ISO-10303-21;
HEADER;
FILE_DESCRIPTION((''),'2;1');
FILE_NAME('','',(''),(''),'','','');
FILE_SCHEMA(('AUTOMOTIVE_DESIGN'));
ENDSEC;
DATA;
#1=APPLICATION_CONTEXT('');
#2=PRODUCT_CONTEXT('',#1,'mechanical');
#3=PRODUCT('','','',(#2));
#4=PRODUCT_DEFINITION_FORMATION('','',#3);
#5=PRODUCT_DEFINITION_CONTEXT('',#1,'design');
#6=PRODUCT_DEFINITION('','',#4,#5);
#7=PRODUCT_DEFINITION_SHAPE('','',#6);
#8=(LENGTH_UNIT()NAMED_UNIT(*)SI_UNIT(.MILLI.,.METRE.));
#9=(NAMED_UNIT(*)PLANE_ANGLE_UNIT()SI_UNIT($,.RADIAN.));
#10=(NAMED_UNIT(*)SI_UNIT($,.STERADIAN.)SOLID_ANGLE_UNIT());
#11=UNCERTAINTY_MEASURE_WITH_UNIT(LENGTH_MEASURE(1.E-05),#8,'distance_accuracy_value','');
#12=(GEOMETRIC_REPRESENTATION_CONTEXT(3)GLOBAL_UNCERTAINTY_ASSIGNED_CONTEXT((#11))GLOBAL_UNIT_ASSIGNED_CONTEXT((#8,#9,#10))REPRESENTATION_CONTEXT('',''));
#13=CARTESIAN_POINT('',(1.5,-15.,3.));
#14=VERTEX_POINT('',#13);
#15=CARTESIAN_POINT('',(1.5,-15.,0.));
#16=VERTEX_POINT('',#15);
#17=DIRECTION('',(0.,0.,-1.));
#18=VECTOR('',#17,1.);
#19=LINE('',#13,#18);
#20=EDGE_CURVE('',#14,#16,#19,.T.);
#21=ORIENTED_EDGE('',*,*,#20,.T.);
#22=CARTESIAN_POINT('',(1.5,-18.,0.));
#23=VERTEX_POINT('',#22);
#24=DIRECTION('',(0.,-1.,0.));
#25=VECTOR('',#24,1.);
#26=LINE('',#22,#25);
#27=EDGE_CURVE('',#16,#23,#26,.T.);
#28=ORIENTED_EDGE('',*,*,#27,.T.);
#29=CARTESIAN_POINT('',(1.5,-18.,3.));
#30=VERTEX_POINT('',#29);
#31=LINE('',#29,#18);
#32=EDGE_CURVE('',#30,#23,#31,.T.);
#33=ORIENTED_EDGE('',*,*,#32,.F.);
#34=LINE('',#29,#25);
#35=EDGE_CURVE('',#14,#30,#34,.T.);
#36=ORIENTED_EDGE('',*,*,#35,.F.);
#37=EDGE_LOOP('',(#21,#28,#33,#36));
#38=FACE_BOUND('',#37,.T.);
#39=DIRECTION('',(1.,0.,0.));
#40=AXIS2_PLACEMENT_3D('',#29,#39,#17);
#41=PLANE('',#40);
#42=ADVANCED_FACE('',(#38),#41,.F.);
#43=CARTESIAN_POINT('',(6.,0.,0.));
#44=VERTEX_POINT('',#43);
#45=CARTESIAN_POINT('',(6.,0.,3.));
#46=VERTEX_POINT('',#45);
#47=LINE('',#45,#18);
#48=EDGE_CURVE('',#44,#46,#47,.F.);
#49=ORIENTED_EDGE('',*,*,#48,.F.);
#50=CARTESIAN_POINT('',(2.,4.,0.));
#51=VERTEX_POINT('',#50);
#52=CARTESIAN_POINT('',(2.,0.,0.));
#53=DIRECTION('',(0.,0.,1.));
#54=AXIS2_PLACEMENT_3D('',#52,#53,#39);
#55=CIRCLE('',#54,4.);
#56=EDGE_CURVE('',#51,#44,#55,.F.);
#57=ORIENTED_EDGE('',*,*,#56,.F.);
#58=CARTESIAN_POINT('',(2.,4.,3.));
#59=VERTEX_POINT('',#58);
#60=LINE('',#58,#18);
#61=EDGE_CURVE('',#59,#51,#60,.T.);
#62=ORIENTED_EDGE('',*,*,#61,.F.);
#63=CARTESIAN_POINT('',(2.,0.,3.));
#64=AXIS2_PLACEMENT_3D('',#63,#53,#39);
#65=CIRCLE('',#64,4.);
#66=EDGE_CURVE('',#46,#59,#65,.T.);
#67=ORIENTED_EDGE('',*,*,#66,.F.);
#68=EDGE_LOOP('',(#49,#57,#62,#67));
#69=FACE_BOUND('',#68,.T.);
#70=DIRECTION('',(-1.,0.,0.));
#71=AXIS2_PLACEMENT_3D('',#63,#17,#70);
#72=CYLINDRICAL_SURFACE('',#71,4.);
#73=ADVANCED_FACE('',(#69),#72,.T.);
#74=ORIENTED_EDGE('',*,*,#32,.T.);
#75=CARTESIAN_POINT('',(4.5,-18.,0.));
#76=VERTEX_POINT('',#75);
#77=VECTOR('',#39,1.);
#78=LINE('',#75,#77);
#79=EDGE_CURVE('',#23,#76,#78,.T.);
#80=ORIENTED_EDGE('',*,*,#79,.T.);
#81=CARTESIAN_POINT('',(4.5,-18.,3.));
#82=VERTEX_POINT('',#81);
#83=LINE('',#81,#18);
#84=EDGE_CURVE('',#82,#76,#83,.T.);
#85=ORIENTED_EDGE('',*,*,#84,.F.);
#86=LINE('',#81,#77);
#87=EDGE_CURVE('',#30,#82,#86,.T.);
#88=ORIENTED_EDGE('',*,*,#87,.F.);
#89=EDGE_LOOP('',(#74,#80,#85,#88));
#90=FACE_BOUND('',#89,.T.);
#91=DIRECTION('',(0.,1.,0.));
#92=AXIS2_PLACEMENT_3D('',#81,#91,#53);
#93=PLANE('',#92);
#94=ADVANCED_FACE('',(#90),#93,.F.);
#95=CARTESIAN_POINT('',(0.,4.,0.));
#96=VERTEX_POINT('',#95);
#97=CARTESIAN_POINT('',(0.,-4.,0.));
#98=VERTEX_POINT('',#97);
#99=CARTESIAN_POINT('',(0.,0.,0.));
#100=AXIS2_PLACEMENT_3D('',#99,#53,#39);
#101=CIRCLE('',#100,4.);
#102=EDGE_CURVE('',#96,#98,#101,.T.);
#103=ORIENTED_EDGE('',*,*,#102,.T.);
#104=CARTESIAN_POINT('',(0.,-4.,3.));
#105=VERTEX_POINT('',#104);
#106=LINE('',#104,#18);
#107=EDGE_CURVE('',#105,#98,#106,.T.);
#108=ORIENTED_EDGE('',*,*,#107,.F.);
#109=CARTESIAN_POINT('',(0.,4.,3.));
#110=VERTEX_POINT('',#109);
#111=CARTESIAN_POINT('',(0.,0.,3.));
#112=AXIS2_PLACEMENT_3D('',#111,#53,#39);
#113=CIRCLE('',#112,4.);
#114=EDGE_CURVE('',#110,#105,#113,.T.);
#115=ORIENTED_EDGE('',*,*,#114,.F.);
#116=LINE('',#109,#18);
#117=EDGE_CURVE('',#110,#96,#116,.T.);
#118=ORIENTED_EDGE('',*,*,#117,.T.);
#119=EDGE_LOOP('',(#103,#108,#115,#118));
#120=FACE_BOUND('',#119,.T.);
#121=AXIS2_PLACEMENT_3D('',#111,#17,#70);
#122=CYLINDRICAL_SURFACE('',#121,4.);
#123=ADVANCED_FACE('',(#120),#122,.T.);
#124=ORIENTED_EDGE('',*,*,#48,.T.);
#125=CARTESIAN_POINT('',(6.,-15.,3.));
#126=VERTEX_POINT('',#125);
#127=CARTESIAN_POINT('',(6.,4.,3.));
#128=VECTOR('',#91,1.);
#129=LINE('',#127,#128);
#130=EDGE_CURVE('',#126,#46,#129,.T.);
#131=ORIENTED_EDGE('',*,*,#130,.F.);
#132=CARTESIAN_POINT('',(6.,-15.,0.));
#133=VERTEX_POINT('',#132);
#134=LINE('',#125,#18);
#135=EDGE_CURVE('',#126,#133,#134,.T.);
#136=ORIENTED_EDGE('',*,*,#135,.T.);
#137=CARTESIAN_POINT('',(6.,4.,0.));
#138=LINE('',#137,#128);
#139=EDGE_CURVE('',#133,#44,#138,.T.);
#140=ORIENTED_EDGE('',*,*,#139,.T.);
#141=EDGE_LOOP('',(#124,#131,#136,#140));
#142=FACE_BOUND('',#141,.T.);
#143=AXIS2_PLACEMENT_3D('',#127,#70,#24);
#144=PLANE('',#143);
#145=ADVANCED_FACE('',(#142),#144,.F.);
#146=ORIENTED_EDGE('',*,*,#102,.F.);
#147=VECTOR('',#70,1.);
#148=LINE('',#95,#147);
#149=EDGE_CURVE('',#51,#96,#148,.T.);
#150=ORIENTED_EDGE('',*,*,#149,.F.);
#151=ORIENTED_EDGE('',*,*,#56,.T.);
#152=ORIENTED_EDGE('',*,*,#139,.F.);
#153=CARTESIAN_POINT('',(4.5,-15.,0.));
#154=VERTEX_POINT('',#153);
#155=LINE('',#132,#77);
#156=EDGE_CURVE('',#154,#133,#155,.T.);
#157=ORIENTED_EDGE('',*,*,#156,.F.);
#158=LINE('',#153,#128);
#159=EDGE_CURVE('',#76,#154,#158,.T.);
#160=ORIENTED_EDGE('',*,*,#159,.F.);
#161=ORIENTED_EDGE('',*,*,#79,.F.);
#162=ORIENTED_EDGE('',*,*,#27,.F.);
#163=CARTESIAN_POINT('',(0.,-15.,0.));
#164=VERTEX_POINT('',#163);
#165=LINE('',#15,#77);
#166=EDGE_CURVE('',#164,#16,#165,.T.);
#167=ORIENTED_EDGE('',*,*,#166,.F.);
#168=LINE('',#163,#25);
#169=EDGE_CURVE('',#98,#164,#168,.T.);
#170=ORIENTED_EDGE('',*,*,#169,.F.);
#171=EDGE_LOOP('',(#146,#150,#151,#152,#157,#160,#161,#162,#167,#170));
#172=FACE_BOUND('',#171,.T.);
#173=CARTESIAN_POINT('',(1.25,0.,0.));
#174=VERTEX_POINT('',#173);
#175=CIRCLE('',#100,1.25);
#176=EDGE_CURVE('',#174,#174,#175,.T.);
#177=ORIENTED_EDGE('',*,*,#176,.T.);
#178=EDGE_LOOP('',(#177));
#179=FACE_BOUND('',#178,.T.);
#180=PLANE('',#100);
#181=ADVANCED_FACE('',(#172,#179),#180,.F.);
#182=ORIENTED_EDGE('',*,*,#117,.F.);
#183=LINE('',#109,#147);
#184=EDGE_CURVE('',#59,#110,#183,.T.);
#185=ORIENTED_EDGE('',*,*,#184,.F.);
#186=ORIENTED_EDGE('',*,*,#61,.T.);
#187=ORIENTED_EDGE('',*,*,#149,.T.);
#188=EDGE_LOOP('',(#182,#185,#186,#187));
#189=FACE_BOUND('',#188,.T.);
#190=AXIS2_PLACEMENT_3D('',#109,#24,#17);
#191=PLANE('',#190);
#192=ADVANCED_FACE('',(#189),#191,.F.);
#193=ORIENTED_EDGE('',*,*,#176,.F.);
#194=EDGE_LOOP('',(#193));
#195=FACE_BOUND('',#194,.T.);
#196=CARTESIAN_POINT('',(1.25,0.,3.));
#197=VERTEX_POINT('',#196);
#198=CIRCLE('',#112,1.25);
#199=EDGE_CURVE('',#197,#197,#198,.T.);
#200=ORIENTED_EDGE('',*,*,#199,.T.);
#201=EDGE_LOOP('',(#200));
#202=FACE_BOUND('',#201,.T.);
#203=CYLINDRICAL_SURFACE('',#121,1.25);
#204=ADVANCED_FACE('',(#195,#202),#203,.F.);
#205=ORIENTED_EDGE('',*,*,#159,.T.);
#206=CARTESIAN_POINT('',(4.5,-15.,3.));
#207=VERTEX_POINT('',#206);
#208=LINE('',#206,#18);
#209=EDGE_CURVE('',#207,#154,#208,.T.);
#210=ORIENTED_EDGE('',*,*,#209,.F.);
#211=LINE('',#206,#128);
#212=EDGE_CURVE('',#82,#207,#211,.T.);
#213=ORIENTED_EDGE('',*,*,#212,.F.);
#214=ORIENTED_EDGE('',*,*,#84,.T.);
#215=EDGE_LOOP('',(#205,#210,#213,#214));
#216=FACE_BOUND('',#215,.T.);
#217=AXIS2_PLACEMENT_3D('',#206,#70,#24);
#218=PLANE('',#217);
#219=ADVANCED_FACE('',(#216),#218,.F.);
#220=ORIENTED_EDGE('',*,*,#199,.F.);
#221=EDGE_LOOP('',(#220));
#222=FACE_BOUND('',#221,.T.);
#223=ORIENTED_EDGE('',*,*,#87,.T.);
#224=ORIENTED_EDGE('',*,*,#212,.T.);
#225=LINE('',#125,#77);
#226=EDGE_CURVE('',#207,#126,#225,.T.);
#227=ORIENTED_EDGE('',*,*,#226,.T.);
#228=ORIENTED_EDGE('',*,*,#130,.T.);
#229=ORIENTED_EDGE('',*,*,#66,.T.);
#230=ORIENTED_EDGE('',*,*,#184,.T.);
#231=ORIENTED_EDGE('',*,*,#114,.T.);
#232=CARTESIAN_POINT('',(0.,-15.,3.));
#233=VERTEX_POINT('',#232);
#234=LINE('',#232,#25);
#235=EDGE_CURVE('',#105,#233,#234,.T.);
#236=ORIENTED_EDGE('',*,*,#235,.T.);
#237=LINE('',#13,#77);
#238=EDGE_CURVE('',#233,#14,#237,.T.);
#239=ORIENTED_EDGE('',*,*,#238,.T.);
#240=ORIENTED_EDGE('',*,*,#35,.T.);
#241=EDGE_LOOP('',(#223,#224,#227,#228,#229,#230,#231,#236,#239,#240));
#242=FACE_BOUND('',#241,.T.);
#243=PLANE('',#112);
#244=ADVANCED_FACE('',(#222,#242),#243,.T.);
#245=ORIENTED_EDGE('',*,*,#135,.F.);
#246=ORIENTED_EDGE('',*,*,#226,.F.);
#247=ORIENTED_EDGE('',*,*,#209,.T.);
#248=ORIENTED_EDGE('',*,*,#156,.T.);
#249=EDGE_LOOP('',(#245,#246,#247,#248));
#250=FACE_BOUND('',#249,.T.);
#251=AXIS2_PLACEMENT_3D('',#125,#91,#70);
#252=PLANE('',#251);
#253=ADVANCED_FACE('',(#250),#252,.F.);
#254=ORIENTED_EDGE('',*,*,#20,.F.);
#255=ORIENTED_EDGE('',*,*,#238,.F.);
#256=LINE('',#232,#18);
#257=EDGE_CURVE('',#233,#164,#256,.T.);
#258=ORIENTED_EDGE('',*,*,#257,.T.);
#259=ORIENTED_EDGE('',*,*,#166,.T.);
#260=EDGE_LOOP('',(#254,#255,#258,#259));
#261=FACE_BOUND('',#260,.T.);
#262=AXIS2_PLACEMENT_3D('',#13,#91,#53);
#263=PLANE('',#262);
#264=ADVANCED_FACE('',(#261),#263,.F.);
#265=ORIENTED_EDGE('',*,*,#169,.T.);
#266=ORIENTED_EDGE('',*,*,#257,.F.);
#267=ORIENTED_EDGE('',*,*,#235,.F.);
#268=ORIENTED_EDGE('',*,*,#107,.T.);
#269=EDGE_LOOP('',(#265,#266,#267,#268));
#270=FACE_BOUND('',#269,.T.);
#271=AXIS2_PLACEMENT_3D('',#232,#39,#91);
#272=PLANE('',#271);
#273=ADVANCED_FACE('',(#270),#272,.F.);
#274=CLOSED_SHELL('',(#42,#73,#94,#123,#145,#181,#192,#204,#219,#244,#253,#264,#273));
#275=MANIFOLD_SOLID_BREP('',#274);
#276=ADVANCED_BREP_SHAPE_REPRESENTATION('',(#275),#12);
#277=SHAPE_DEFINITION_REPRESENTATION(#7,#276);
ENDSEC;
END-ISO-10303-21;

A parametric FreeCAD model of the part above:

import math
import FreeCAD as App
import Part
import Sketcher

V = App.Vector


def edges_at(feature, points):
    """Names of the edges that pass closest to the given points."""
    edges = feature.Shape.Edges
    near = lambda p: min(range(len(edges)), key=lambda i: edges[i].distToShape(Part.Vertex(*p))[0])
    return sorted({f"Edge{near(p) + 1}" for p in points})

doc = App.newDocument("Part")
params = doc.addObject("Spreadsheet::Sheet", "Params")
for row, (alias, value) in enumerate([
    ("sketch1_radius", "4 mm"),
    ("sketch1_diameter", "2.5 mm"),
    ("sketch1_width", "6 mm"),
    ("sketch1_width2", "3 mm"),
    ("sketch1_height", "19 mm"),
    ("pad1_length", "3 mm"),
    ("fillet_radius", "4 mm"),
], start=1):
    params.set(f"A{row}", alias)
    params.set(f"B{row}", "=" + value)
    params.setAlias(f"B{row}", alias)

body = doc.addObject("PartDesign::Body", "Body")

sketch1 = doc.addObject("Sketcher::SketchObject", "Sketch")
body.addObject(sketch1)
sketch1.AttachmentSupport = (doc.XY_Plane, [""])
sketch1.MapMode = "FlatFace"
sketch1.addGeometry(Part.LineSegment(V(6, -15, 0), V(6, 4, 0)), False)
sketch1.addGeometry(Part.LineSegment(V(6, 4, 0), V(0, 4, 0)), False)
sketch1.addGeometry(Part.ArcOfCircle(Part.Circle(V(0, 0, 0), V(0, 0, 1), 4), math.radians(90), math.radians(270)), False)
sketch1.addGeometry(Part.LineSegment(V(0, -4, 0), V(0, -15, 0)), False)
sketch1.addGeometry(Part.LineSegment(V(0, -15, 0), V(1.5, -15, 0)), False)
sketch1.addGeometry(Part.LineSegment(V(1.5, -15, 0), V(1.5, -18, 0)), False)
sketch1.addGeometry(Part.LineSegment(V(1.5, -18, 0), V(4.5, -18, 0)), False)
sketch1.addGeometry(Part.LineSegment(V(4.5, -18, 0), V(4.5, -15, 0)), False)
sketch1.addGeometry(Part.LineSegment(V(4.5, -15, 0), V(6, -15, 0)), False)
sketch1.addGeometry(Part.Circle(V(0, 0, 0), V(0, 0, 1), 1.25), False)
sketch1.addConstraint(Sketcher.Constraint("Coincident", 0, 2, 1, 1))
sketch1.addConstraint(Sketcher.Constraint("Tangent", 1, 2, 2, 1))
sketch1.addConstraint(Sketcher.Constraint("Coincident", 2, 2, 3, 1))
sketch1.addConstraint(Sketcher.Constraint("Coincident", 3, 2, 4, 1))
sketch1.addConstraint(Sketcher.Constraint("Coincident", 4, 2, 5, 1))
sketch1.addConstraint(Sketcher.Constraint("Coincident", 5, 2, 6, 1))
sketch1.addConstraint(Sketcher.Constraint("Coincident", 6, 2, 7, 1))
sketch1.addConstraint(Sketcher.Constraint("Coincident", 7, 2, 8, 1))
sketch1.addConstraint(Sketcher.Constraint("Coincident", 8, 2, 0, 1))
sketch1.addConstraint(Sketcher.Constraint("Vertical", 0))
sketch1.addConstraint(Sketcher.Constraint("Horizontal", 1))
sketch1.addConstraint(Sketcher.Constraint("Vertical", 3))
sketch1.addConstraint(Sketcher.Constraint("Horizontal", 4))
sketch1.addConstraint(Sketcher.Constraint("Vertical", 5))
sketch1.addConstraint(Sketcher.Constraint("Horizontal", 6))
sketch1.addConstraint(Sketcher.Constraint("Vertical", 7))
sketch1.addConstraint(Sketcher.Constraint("Horizontal", 8))
sketch1.addConstraint(Sketcher.Constraint("Coincident", 2, 3, -1, 1))
sketch1.addConstraint(Sketcher.Constraint("Coincident", 9, 3, -1, 1))
sketch1.addConstraint(Sketcher.Constraint("PointOnObject", 2, 2, -2))
sketch1.addConstraint(Sketcher.Constraint("Horizontal", 4, 2, 7, 2))
sketch1.addConstraint(Sketcher.Constraint("Equal", 4, 8))
sketch1.addConstraint(Sketcher.Constraint("Equal", 6, 5))
sketch1.addConstraint(Sketcher.Constraint("Radius", 2, 4.0))
sketch1.addConstraint(Sketcher.Constraint("Diameter", 9, 2.5))
sketch1.addConstraint(Sketcher.Constraint("DistanceX", 1, 2, 1, 1, 6.0))
sketch1.addConstraint(Sketcher.Constraint("DistanceX", 6, 1, 6, 2, 3.0))
sketch1.addConstraint(Sketcher.Constraint("DistanceY", 0, 1, 0, 2, 19.0))
sketch1.setExpression("Constraints[23]", "Params.sketch1_radius")
sketch1.setExpression("Constraints[24]", "Params.sketch1_diameter")
sketch1.setExpression("Constraints[25]", "Params.sketch1_width")
sketch1.setExpression("Constraints[26]", "Params.sketch1_width2")
sketch1.setExpression("Constraints[27]", "Params.sketch1_height")
pad1 = doc.addObject("PartDesign::Pad", "Pad")
body.addObject(pad1)
pad1.Profile = sketch1
pad1.setExpression("Length", "Params.pad1_length")
doc.recompute()

fillet = doc.addObject("PartDesign::Fillet", "Fillet")
body.addObject(fillet)
fillet.Base = (pad1, edges_at(pad1, [(6, 4, 1.5)]))
fillet.setExpression("Radius", "Params.fillet_radius")

doc.recompute()
